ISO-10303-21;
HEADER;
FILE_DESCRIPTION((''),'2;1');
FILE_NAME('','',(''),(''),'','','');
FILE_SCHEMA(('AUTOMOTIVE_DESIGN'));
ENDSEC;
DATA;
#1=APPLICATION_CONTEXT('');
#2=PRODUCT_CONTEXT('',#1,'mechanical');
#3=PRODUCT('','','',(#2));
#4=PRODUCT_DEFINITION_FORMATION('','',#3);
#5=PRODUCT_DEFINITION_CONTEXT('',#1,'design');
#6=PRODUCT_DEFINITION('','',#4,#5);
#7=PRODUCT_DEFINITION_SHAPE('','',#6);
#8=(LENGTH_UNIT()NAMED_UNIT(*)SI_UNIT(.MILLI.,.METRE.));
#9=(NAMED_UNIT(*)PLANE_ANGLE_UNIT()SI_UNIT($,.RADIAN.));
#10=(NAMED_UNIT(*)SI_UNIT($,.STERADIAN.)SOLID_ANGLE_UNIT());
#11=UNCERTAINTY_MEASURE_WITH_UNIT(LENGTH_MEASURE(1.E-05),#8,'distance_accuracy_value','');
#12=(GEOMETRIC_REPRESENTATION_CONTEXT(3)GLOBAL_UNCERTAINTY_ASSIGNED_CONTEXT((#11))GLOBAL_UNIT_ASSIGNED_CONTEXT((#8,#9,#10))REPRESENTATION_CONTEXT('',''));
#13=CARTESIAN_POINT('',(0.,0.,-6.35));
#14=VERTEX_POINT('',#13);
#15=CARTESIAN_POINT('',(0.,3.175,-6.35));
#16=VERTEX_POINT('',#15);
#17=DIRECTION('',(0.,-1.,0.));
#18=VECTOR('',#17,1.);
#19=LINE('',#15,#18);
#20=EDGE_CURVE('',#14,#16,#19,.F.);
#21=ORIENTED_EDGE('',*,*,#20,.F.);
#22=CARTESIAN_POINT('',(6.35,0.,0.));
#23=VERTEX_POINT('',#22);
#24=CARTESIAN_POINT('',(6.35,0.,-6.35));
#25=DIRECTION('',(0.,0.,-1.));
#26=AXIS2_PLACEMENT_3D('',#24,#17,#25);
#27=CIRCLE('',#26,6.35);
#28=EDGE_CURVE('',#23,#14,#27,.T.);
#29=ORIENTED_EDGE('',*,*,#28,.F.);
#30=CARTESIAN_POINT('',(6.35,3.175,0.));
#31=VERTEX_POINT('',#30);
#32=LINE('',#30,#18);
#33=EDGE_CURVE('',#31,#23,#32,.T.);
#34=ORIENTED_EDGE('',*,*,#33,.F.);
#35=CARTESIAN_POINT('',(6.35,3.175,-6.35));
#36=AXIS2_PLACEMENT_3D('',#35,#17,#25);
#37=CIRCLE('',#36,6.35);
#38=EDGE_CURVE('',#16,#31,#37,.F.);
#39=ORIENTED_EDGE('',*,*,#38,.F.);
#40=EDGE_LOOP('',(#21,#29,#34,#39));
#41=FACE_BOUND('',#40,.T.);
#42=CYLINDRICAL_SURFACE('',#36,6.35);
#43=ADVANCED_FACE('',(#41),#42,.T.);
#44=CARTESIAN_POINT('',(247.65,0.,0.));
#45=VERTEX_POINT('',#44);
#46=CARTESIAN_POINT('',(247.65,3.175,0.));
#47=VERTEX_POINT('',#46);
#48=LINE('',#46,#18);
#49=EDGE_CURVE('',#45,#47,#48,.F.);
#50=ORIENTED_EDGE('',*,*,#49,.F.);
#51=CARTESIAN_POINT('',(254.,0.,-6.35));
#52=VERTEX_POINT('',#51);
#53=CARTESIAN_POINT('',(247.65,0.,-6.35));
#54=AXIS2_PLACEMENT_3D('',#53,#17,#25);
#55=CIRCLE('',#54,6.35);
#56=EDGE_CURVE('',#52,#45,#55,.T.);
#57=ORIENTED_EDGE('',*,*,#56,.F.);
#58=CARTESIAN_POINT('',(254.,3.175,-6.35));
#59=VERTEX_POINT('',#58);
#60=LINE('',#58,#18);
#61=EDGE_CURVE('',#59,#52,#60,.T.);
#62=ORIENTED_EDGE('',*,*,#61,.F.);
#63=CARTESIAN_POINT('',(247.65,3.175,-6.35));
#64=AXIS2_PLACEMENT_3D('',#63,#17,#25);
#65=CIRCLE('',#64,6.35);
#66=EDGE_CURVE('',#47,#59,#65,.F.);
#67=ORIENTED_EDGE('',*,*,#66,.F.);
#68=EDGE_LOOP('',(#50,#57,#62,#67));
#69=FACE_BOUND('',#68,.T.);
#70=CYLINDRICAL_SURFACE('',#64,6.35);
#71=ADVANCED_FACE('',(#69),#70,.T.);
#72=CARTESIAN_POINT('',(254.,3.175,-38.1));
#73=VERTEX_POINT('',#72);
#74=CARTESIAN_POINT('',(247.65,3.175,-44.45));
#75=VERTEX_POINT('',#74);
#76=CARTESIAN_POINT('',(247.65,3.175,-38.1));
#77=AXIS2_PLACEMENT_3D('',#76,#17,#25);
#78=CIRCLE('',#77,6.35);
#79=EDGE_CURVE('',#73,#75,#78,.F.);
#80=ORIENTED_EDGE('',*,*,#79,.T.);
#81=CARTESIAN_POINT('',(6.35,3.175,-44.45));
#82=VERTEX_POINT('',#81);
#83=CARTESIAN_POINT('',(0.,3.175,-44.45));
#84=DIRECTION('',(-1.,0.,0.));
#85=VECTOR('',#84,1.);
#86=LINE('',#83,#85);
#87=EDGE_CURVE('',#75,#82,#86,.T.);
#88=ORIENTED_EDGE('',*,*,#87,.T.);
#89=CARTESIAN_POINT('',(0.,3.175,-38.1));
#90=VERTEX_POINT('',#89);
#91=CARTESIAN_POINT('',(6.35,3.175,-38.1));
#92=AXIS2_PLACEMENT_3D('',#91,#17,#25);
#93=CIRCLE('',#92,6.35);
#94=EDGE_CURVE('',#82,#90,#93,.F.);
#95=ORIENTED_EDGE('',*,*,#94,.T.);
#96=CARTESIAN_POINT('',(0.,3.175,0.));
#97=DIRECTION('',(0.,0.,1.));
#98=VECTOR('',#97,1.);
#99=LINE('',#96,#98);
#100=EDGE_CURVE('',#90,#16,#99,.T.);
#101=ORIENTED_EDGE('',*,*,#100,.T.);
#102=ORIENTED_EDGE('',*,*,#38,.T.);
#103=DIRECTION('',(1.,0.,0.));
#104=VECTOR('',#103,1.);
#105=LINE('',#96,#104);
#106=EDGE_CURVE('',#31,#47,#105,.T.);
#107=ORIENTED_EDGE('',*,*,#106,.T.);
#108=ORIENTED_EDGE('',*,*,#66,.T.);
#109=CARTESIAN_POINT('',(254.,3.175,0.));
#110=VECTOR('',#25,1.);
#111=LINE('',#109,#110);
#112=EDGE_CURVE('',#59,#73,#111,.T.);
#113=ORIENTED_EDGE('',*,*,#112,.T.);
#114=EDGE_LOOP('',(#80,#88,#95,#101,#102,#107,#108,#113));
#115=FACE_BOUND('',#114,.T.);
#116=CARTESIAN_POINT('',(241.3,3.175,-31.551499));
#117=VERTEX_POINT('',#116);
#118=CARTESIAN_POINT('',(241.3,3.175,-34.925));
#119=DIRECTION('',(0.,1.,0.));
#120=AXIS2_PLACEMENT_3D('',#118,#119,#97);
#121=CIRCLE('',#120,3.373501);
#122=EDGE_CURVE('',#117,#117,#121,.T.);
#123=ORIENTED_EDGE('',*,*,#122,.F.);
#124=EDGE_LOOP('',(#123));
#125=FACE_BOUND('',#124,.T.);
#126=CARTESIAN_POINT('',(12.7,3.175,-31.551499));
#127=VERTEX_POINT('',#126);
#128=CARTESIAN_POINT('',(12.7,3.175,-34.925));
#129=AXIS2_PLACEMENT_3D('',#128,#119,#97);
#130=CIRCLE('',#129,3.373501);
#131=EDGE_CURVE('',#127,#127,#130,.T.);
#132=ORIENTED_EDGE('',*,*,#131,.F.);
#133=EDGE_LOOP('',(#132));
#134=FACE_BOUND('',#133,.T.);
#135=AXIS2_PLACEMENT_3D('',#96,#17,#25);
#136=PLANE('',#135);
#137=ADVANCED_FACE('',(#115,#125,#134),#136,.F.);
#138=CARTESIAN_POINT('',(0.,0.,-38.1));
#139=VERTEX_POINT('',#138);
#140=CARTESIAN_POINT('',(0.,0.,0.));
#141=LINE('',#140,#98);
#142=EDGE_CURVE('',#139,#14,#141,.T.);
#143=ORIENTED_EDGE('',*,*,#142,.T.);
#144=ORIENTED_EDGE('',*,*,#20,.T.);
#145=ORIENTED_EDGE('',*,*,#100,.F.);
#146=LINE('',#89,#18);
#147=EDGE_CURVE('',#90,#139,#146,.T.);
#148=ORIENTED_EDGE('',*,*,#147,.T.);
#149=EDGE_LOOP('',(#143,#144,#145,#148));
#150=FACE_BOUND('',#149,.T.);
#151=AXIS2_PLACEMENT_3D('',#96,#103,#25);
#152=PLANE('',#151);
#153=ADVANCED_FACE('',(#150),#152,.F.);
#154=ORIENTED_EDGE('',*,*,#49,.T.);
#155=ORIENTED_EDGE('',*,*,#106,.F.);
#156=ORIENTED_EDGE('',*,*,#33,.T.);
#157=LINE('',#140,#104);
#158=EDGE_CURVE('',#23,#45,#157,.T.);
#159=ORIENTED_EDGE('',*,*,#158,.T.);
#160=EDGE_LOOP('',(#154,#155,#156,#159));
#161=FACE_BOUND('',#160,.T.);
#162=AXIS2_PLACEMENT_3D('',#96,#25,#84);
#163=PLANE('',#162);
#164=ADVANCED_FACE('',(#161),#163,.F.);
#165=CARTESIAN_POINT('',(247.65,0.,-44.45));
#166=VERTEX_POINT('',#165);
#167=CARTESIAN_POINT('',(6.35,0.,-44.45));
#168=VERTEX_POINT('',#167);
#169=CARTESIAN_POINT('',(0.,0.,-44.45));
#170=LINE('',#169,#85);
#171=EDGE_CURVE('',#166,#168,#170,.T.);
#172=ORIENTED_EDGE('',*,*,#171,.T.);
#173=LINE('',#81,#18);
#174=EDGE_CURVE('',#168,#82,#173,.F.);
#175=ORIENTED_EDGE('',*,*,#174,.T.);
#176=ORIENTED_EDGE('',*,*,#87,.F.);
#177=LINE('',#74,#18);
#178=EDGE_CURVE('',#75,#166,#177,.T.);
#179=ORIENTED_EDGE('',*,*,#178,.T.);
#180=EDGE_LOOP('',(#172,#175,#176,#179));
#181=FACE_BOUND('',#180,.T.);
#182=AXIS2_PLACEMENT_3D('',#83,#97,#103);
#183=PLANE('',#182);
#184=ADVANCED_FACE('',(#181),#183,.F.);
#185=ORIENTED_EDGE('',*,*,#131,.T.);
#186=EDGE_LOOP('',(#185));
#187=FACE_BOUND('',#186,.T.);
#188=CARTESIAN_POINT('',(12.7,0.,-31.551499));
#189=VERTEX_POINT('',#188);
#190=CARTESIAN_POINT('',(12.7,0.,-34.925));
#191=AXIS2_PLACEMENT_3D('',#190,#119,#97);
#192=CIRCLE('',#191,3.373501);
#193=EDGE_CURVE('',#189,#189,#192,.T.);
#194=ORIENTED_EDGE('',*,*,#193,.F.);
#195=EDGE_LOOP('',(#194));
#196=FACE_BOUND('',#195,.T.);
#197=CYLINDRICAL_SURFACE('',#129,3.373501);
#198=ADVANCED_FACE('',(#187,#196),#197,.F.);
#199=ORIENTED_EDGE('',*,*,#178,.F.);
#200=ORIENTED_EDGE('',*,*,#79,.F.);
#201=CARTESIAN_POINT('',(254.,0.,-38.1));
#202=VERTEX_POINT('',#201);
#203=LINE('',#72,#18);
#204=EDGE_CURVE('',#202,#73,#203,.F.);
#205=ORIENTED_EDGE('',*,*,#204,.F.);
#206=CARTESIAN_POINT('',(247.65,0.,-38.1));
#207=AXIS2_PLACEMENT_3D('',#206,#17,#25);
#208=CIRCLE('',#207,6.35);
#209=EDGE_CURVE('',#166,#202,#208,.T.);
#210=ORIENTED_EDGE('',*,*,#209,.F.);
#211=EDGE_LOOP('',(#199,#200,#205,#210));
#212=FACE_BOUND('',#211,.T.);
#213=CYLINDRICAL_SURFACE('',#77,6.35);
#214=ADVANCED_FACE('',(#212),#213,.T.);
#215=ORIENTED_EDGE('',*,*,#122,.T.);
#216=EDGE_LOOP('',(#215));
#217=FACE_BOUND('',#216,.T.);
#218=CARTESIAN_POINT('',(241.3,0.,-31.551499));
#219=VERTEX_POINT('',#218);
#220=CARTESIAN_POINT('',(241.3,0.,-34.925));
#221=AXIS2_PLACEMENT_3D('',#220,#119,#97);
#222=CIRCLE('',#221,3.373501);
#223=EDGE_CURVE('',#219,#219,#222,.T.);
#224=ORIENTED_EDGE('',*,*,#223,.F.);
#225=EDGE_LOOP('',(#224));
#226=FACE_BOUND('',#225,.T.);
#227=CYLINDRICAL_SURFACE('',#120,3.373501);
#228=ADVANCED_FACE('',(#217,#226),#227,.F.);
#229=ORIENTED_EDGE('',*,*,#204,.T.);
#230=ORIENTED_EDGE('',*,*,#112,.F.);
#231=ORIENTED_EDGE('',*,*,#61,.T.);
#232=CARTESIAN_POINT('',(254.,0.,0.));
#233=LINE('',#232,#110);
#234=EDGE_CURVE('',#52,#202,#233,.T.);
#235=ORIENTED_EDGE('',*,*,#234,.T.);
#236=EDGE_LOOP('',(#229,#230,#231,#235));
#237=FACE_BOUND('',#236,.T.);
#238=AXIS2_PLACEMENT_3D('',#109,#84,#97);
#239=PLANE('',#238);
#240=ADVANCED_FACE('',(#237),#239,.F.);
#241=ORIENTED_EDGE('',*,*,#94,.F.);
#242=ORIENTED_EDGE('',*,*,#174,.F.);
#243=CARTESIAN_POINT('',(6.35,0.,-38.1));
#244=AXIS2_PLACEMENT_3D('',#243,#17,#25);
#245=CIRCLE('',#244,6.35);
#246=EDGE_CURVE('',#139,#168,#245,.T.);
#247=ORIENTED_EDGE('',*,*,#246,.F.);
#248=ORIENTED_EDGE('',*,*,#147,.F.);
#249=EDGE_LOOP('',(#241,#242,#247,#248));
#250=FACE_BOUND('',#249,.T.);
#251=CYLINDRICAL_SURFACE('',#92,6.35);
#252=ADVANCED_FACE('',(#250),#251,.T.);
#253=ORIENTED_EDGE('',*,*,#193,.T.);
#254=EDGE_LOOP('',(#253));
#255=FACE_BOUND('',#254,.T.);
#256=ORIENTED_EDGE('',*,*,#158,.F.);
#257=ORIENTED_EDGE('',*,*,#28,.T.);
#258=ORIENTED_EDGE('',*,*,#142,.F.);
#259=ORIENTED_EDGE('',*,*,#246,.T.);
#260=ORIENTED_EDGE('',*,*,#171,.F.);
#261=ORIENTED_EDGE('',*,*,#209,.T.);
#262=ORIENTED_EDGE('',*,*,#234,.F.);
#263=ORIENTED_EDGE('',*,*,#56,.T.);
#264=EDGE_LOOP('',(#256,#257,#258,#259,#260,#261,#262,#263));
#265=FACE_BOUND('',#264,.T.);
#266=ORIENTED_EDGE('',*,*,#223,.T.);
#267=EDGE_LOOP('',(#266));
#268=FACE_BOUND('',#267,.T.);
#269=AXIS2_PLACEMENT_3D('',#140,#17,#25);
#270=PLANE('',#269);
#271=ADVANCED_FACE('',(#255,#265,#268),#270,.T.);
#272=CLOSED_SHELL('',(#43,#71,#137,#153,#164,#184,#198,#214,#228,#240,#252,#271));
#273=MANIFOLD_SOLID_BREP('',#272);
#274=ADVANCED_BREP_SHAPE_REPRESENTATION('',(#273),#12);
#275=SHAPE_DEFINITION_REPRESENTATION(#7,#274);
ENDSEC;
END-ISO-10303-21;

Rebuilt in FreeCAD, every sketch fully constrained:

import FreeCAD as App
import Part
import Sketcher
from FreeCAD import Vector
Q = App.Units.Quantity


def edges_at(feature, points):
    """Names of the edges that pass closest to the given points."""
    edges = feature.Shape.Edges
    near = lambda p: min(range(len(edges)), key=lambda i: edges[i].distToShape(Part.Vertex(*p))[0])
    return sorted({f"Edge{near(p) + 1}" for p in points})

doc = App.newDocument("Part")
body = doc.addObject("PartDesign::Body", "Body")

# Sketch on XZ plane
sketch1 = doc.addObject("Sketcher::SketchObject", "Sketch")
body.addObject(sketch1)
sketch1.AttachmentSupport = (doc.XZ_Plane, [""])
sketch1.MapMode = "FlatFace"
sketch1.addGeometry([
    Part.LineSegment(Vector(0, -44, 0), Vector(0, 0, 0)),
    Part.LineSegment(Vector(0, 0, 0), Vector(254, 0, 0)),
    Part.LineSegment(Vector(254, 0, 0), Vector(254, -44, 0)),
    Part.LineSegment(Vector(254, -44, 0), Vector(0, -44, 0)),
], False)
sketch1.addConstraint([
    Sketcher.Constraint("Coincident", 0, 2, 1, 1),
    Sketcher.Constraint("Coincident", 1, 2, 2, 1),
    Sketcher.Constraint("Coincident", 2, 2, 3, 1),
    Sketcher.Constraint("Coincident", 3, 2, 0, 1),
    Sketcher.Constraint("Vertical", 0),
    Sketcher.Constraint("Horizontal", 1),
    Sketcher.Constraint("Vertical", 2),
    Sketcher.Constraint("Horizontal", 3),
    Sketcher.Constraint("Coincident", 0, 2, -1, 1),
    Sketcher.Constraint("DistanceX", 1, 1, 1, 2, Q("10 in")),
    Sketcher.Constraint("DistanceY", 0, 1, 0, 2, Q("1.75 in")),
])
pad1 = doc.addObject("PartDesign::Pad", "Pad")
body.addObject(pad1)
pad1.Profile = sketch1
pad1.Length = Q("0.125 in")
pad1.Reversed = True
doc.recompute()

fillet = doc.addObject("PartDesign::Fillet", "Fillet")
body.addObject(fillet)
fillet.Base = (pad1, edges_at(pad1, [
    (0, 1.587, -44.45),
    (254, 1.587, -44.45),
    (254, 1.587, 0),
    (0, 1.587, 0),
]))
fillet.Radius = Q("0.25 in")

# Sketch on XZ plane
sketch2 = doc.addObject("Sketcher::SketchObject", "Sketch001")
body.addObject(sketch2)
sketch2.AttachmentSupport = (doc.XZ_Plane, [""])
sketch2.MapMode = "FlatFace"
sketch2.AttachmentOffset = App.Placement(Vector(0, 0, -0.125 * 25.4), App.Rotation())
sketch2.addGeometry([
    Part.Circle(Vector(12.7, -34.9, 0), Vector(0, 0, 1), 3.4),
    Part.Circle(Vector(241.3, -34.9, 0), Vector(0, 0, 1), 3.4),
], False)
sketch2.addConstraint([
    Sketcher.Constraint("Equal", 0, 1),
    Sketcher.Constraint("Horizontal", 0, 3, 1, 3),
    Sketcher.Constraint("DistanceX", 0, 3, 1, 3, Q("9 in")),
    Sketcher.Constraint("DistanceX", -1, 1, 0, 3, Q("0.5 in")),
    Sketcher.Constraint("DistanceY", 0, 3, -1, 1, Q("1.375 in")),
    Sketcher.Constraint("Diameter", 0, 6.747002),
])
doc.recompute()
hole = doc.addObject("PartDesign::Hole", "Hole")
body.addObject(hole)
hole.Profile = sketch2
hole.ThreadType = "None"
hole.Diameter = 6.747002
hole.DepthType = "ThroughAll"
hole.Reversed = True

doc.recompute()
